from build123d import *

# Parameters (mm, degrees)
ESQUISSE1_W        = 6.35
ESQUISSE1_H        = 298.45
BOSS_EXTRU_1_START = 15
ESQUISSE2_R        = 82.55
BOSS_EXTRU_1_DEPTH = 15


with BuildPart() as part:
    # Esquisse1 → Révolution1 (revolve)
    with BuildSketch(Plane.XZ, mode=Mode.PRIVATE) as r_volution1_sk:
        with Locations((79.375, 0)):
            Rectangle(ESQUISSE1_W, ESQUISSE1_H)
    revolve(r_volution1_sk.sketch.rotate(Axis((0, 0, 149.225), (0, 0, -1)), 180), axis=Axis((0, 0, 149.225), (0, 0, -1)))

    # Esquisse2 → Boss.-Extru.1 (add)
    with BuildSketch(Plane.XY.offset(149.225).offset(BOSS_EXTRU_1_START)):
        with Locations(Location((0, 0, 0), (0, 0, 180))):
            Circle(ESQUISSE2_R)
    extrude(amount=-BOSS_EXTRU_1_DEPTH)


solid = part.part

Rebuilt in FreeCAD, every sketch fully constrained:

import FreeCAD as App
import Part
import Sketcher
from FreeCAD import Vector
Q = App.Units.Quantity


def add_polygon(sketch, points):
    """Adds a closed chain of lines whose ends are joined by coincident constraints."""
    first, n = sketch.GeometryCount, len(points)
    for a, b in zip(points, points[1:] + points[:1]):
        sketch.addGeometry(Part.LineSegment(App.Vector(*a, 0), App.Vector(*b, 0)), False)
    for i in range(n):
        sketch.addConstraint(Sketcher.Constraint("Coincident", first + i, 2, first + (i + 1) % n, 1))

doc = App.newDocument("Part")
params = doc.addObject("Spreadsheet::Sheet", "Params")
for row, (alias, value) in enumerate([
    ("sketch1_width", "0.25 in"),
    ("sketch1_height", "11.75 in"),
    ("revolution_angle", "360 deg"),
    ("sketch2_diameter", "6.5 in"),
    ("pad1_length", "15 mm"),
], start=1):
    params.set(f"A{row}", alias)
    params.set(f"B{row}", "=" + value)
    params.setAlias(f"B{row}", alias)

body = doc.addObject("PartDesign::Body", "Body")

# Sketch on XZ plane
sketch1 = body.newObject("Sketcher::SketchObject", "Sketch")
sketch1.AttachmentSupport = (doc.getObject("XZ_Plane"), [""])
sketch1.MapMode = "FlatFace"
add_polygon(sketch1, [(76, 149), (76, -149), (83, -149), (83, 149)])  # lines 0-3
sketch1.addConstraint([
    Sketcher.Constraint("Vertical", 0),
    Sketcher.Constraint("Horizontal", 1),
    Sketcher.Constraint("Vertical", 2),
    Sketcher.Constraint("Horizontal", 3),
    Sketcher.Constraint("DistanceX", -1, 1, 0, 2, Q("3 in")),
    Sketcher.Constraint("DistanceX", 1, 1, 1, 2, Q("0.25 in")),
    Sketcher.Constraint("DistanceY", 0, 2, 0, 1, Q("11.75 in")),
    Sketcher.Constraint("DistanceY", 0, 2, -1, 1, Q("5.875 in")),
])
sketch1.setExpression("Constraints[9]", "Params.sketch1_width")
sketch1.setExpression("Constraints[10]", "Params.sketch1_height")
revolution = body.newObject("PartDesign::Revolution", "Revolution")
revolution.Profile = sketch1
revolution.ReferenceAxis = (sketch1, ["V_Axis"])
revolution.setExpression("Angle", "Params.revolution_angle")

# Sketch on XY plane
sketch2 = body.newObject("Sketcher::SketchObject", "Sketch001")
sketch2.AttachmentSupport = (doc.getObject("XY_Plane"), [""])
sketch2.MapMode = "FlatFace"
sketch2.AttachmentOffset = App.Placement(Vector(0, 0, 164.225), App.Rotation())
sketch2.addGeometry(Part.Circle(Vector(0, 0, 0), Vector(0, 0, 1), 83), False)
sketch2.addConstraint([
    Sketcher.Constraint("Coincident", 0, 3, -1, 1),
    Sketcher.Constraint("Diameter", 0, Q("6.5 in")),
])
sketch2.setExpression("Constraints[1]", "Params.sketch2_diameter")
pad1 = body.newObject("PartDesign::Pad", "Pad")
pad1.Profile = sketch2
pad1.setExpression("Length", "Params.pad1_length")
pad1.Reversed = True

doc.recompute()
